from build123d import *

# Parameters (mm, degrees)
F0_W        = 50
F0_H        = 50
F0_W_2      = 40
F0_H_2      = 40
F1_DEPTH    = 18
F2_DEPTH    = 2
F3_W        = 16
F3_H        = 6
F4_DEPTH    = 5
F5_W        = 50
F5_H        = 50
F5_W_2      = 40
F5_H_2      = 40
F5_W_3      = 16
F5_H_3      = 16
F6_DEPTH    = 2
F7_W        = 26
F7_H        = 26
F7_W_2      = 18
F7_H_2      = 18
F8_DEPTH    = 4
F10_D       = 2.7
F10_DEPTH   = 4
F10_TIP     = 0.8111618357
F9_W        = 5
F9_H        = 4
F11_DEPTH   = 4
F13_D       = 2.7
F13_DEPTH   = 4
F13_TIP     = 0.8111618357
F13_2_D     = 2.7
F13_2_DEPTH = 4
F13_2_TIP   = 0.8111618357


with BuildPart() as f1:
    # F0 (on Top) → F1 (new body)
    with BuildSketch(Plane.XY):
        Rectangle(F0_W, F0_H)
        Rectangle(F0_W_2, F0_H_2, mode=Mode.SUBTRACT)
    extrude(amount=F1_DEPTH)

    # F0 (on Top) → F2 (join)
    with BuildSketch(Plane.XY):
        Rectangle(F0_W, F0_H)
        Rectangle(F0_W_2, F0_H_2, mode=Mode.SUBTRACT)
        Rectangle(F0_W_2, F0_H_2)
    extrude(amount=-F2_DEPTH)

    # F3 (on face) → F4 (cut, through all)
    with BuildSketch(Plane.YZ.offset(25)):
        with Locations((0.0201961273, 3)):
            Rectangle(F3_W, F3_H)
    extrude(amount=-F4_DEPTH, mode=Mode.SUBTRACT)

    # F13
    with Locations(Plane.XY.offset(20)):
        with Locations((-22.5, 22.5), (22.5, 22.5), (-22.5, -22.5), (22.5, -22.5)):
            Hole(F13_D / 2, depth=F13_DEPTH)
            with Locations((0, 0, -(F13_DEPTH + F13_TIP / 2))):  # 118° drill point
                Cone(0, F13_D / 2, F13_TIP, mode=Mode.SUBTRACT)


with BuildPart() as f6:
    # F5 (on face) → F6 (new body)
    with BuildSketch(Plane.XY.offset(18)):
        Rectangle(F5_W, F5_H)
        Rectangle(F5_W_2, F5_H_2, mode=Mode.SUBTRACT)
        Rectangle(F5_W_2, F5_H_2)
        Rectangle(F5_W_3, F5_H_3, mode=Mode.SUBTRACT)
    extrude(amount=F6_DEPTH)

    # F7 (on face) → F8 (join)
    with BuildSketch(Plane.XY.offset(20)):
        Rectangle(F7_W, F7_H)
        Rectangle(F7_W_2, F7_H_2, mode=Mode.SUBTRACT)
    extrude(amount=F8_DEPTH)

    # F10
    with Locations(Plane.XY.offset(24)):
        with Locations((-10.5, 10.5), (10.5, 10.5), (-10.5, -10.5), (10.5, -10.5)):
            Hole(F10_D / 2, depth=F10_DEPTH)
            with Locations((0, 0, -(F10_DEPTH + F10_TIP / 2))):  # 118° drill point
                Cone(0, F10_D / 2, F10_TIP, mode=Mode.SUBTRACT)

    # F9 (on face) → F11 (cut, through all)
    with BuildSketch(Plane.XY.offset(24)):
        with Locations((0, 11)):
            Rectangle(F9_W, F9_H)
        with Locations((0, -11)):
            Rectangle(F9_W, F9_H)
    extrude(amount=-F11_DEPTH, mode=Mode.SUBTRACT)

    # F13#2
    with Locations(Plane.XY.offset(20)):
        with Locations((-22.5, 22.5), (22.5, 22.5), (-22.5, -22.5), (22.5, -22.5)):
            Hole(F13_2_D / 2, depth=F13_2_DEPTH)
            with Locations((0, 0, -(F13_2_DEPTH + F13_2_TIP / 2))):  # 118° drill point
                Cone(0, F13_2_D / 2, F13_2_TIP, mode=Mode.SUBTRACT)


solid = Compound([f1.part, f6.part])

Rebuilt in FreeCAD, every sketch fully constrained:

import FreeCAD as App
import Part
import Sketcher
from FreeCAD import Vector
Q = App.Units.Quantity

doc = App.newDocument("Part")
body = doc.addObject("PartDesign::Body", "Body")

# Sketch on XY plane
sketch1 = body.newObject("Sketcher::SketchObject", "Sketch")
sketch1.AttachmentSupport = (doc.getObject("XY_Plane"), [""])
sketch1.MapMode = "FlatFace"
sketch1.addGeometry([
    Part.LineSegment(Vector(-25, 25, 0), Vector(-25, -25, 0)),  # 0
    Part.LineSegment(Vector(-25, -25, 0), Vector(25, -25, 0)),  # 1
    Part.LineSegment(Vector(25, -25, 0), Vector(25, 25, 0)),  # 2
    Part.LineSegment(Vector(25, 25, 0), Vector(-25, 25, 0)),  # 3
    Part.LineSegment(Vector(20, -20, 0), Vector(-20, -20, 0)),  # 4
    Part.LineSegment(Vector(-20, -20, 0), Vector(-20, 20, 0)),  # 5
    Part.LineSegment(Vector(-20, 20, 0), Vector(20, 20, 0)),  # 6
    Part.LineSegment(Vector(20, 20, 0), Vector(20, -20, 0)),  # 7
], False)
sketch1.addConstraint([
    Sketcher.Constraint("Coincident", 0, 2, 1, 1),
    Sketcher.Constraint("Coincident", 1, 2, 2, 1),
    Sketcher.Constraint("Coincident", 2, 2, 3, 1),
    Sketcher.Constraint("Coincident", 3, 2, 0, 1),
    Sketcher.Constraint("Coincident", 4, 2, 5, 1),
    Sketcher.Constraint("Coincident", 5, 2, 6, 1),
    Sketcher.Constraint("Coincident", 6, 2, 7, 1),
    Sketcher.Constraint("Coincident", 7, 2, 4, 1),
    Sketcher.Constraint("Vertical", 0),
    Sketcher.Constraint("Horizontal", 1),
    Sketcher.Constraint("Vertical", 2),
    Sketcher.Constraint("Horizontal", 3),
    Sketcher.Constraint("Horizontal", 4),
    Sketcher.Constraint("Vertical", 5),
    Sketcher.Constraint("Horizontal", 6),
    Sketcher.Constraint("Vertical", 7),
    Sketcher.Constraint("Symmetric", 0, 2, 2, 2, -1, 1),
    Sketcher.Constraint("Symmetric", 4, 2, 6, 2, -1, 1),
    Sketcher.Constraint("Equal", 3, 0),
    Sketcher.Constraint("Equal", 6, 5),
    Sketcher.Constraint("DistanceX", 1, 1, 1, 2, Q("50 mm")),
    Sketcher.Constraint("DistanceX", 4, 2, 4, 1, Q("40 mm")),
])
pad1 = body.newObject("PartDesign::Pad", "Pad")
pad1.Profile = sketch1
pad1.Length = 18

# Sketch on XY plane
sketch2 = body.newObject("Sketcher::SketchObject", "Sketch001")
sketch2.AttachmentSupport = (doc.getObject("XY_Plane"), [""])
sketch2.MapMode = "FlatFace"
sketch2.addGeometry([
    Part.LineSegment(Vector(-25, 25, 0), Vector(-25, -25, 0)),
    Part.LineSegment(Vector(-25, -25, 0), Vector(25, -25, 0)),
    Part.LineSegment(Vector(25, -25, 0), Vector(25, 25, 0)),
    Part.LineSegment(Vector(25, 25, 0), Vector(-25, 25, 0)),
], False)
sketch2.addConstraint([
    Sketcher.Constraint("Coincident", 0, 2, 1, 1),
    Sketcher.Constraint("Coincident", 1, 2, 2, 1),
    Sketcher.Constraint("Coincident", 2, 2, 3, 1),
    Sketcher.Constraint("Coincident", 3, 2, 0, 1),
    Sketcher.Constraint("Vertical", 0),
    Sketcher.Constraint("Horizontal", 1),
    Sketcher.Constraint("Vertical", 2),
    Sketcher.Constraint("Horizontal", 3),
    Sketcher.Constraint("Symmetric", 0, 2, 2, 2, -1, 1),
    Sketcher.Constraint("Equal", 3, 0),
    Sketcher.Constraint("DistanceX", 1, 1, 1, 2, Q("50 mm")),
])
pad2 = body.newObject("PartDesign::Pad", "Pad001")
pad2.Profile = sketch2
pad2.Length = 2
pad2.Reversed = True

# Sketch on YZ plane
sketch3 = body.newObject("Sketcher::SketchObject", "Sketch002")
sketch3.AttachmentSupport = (doc.getObject("YZ_Plane"), [""])
sketch3.MapMode = "FlatFace"
sketch3.AttachmentOffset = App.Placement(Vector(0, 0, 25), App.Rotation())
sketch3.addGeometry([
    Part.LineSegment(Vector(-8, 6, 0), Vector(-8, 0, 0)),
    Part.LineSegment(Vector(-8, 0, 0), Vector(8, 0, 0)),
    Part.LineSegment(Vector(8, 0, 0), Vector(8, 6, 0)),
    Part.LineSegment(Vector(8, 6, 0), Vector(-8, 6, 0)),
], False)
sketch3.addConstraint([
    Sketcher.Constraint("Coincident", 0, 2, 1, 1),
    Sketcher.Constraint("Coincident", 1, 2, 2, 1),
    Sketcher.Constraint("Coincident", 2, 2, 3, 1),
    Sketcher.Constraint("Coincident", 3, 2, 0, 1),
    Sketcher.Constraint("Vertical", 0),
    Sketcher.Constraint("Horizontal", 1),
    Sketcher.Constraint("Vertical", 2),
    Sketcher.Constraint("Horizontal", 3),
    Sketcher.Constraint("PointOnObject", 0, 2, -1),
    Sketcher.Constraint("DistanceX", 1, 1, 1, 2, Q("16 mm")),
    Sketcher.Constraint("DistanceY", 0, 2, 0, 1, Q("6 mm")),
    Sketcher.Constraint("DistanceX", 0, 2, -1, 1, Q("7.979804 mm")),
])
pocket1 = body.newObject("PartDesign::Pocket", "Pocket")
pocket1.Profile = sketch3
pocket1.Length = 5

# Sketch on XY plane
sketch4 = body.newObject("Sketcher::SketchObject", "Sketch003")
sketch4.AttachmentSupport = (doc.getObject("XY_Plane"), [""])
sketch4.MapMode = "FlatFace"
sketch4.AttachmentOffset = App.Placement(Vector(0, 0, 20), App.Rotation())
sketch4.addGeometry([
    Part.Circle(Vector(-22.5, 22.5, 0), Vector(0, 0, 1), 1.4),
    Part.Circle(Vector(22.5, 22.5, 0), Vector(0, 0, 1), 1.4),
    Part.Circle(Vector(-22.5, -22.5, 0), Vector(0, 0, 1), 1.4),
    Part.Circle(Vector(22.5, -22.5, 0), Vector(0, 0, 1), 1.4),
], False)
sketch4.addConstraint([
    Sketcher.Constraint("Equal", 0, 1),
    Sketcher.Constraint("Equal", 1, 2),
    Sketcher.Constraint("Equal", 2, 3),
    Sketcher.Constraint("Symmetric", 1, 3, 2, 3, -1, 1),
    Sketcher.Constraint("Symmetric", 0, 3, 3, 3, -1, 1),
    Sketcher.Constraint("Symmetric", 0, 3, 1, 3, -2),
    Sketcher.Constraint("Diameter", 0, Q("2.7 mm")),
    Sketcher.Constraint("DistanceX", 0, 3, 1, 3, Q("45 mm")),
    Sketcher.Constraint("DistanceY", 2, 3, 0, 3, Q("45 mm")),
])
doc.recompute()
hole = body.newObject("PartDesign::Hole", "Hole")
hole.Profile = sketch4
hole.ThreadType = "None"
hole.Diameter = 2.7
hole.DepthType = "Dimension"
hole.Depth = 4
hole.DrillPoint = "Angled"
hole.DrillPointAngle = 118
body2 = doc.addObject("PartDesign::Body", "Body001")

# Sketch on XY plane
sketch5 = body2.newObject("Sketcher::SketchObject", "Sketch004")
sketch5.AttachmentSupport = (doc.getObject("XY_Plane001"), [""])
sketch5.MapMode = "FlatFace"
sketch5.AttachmentOffset = App.Placement(Vector(0, 0, 18), App.Rotation())
sketch5.addGeometry([
    Part.LineSegment(Vector(-25, 25, 0), Vector(-25, -25, 0)),  # 0
    Part.LineSegment(Vector(-25, -25, 0), Vector(25, -25, 0)),  # 1
    Part.LineSegment(Vector(25, -25, 0), Vector(25, 25, 0)),  # 2
    Part.LineSegment(Vector(25, 25, 0), Vector(-25, 25, 0)),  # 3
    Part.LineSegment(Vector(8, -8, 0), Vector(-8, -8, 0)),  # 4
    Part.LineSegment(Vector(-8, -8, 0), Vector(-8, 8, 0)),  # 5
    Part.LineSegment(Vector(-8, 8, 0), Vector(8, 8, 0)),  # 6
    Part.LineSegment(Vector(8, 8, 0), Vector(8, -8, 0)),  # 7
], False)
sketch5.addConstraint([
    Sketcher.Constraint("Coincident", 0, 2, 1, 1),
    Sketcher.Constraint("Coincident", 1, 2, 2, 1),
    Sketcher.Constraint("Coincident", 2, 2, 3, 1),
    Sketcher.Constraint("Coincident", 3, 2, 0, 1),
    Sketcher.Constraint("Coincident", 4, 2, 5, 1),
    Sketcher.Constraint("Coincident", 5, 2, 6, 1),
    Sketcher.Constraint("Coincident", 6, 2, 7, 1),
    Sketcher.Constraint("Coincident", 7, 2, 4, 1),
    Sketcher.Constraint("Vertical", 0),
    Sketcher.Constraint("Horizontal", 1),
    Sketcher.Constraint("Vertical", 2),
    Sketcher.Constraint("Horizontal", 3),
    Sketcher.Constraint("Horizontal", 4),
    Sketcher.Constraint("Vertical", 5),
    Sketcher.Constraint("Horizontal", 6),
    Sketcher.Constraint("Vertical", 7),
    Sketcher.Constraint("Symmetric", 0, 2, 2, 2, -1, 1),
    Sketcher.Constraint("Symmetric", 4, 2, 6, 2, -1, 1),
    Sketcher.Constraint("Equal", 3, 0),
    Sketcher.Constraint("Equal", 6, 5),
    Sketcher.Constraint("DistanceX", 1, 1, 1, 2, Q("50 mm")),
    Sketcher.Constraint("DistanceX", 4, 2, 4, 1, Q("16 mm")),
])
pad3 = body2.newObject("PartDesign::Pad", "Pad002")
pad3.Profile = sketch5
pad3.Length = 2

# Sketch on XY plane
sketch6 = body2.newObject("Sketcher::SketchObject", "Sketch005")
sketch6.AttachmentSupport = (doc.getObject("XY_Plane001"), [""])
sketch6.MapMode = "FlatFace"
sketch6.AttachmentOffset = App.Placement(Vector(0, 0, 20), App.Rotation())
sketch6.addGeometry([
    Part.LineSegment(Vector(-13, 13, 0), Vector(-13, -13, 0)),  # 0
    Part.LineSegment(Vector(-13, -13, 0), Vector(13, -13, 0)),  # 1
    Part.LineSegment(Vector(13, -13, 0), Vector(13, 13, 0)),  # 2
    Part.LineSegment(Vector(13, 13, 0), Vector(-13, 13, 0)),  # 3
    Part.LineSegment(Vector(9, -9, 0), Vector(-9, -9, 0)),  # 4
    Part.LineSegment(Vector(-9, -9, 0), Vector(-9, 9, 0)),  # 5
    Part.LineSegment(Vector(-9, 9, 0), Vector(9, 9, 0)),  # 6
    Part.LineSegment(Vector(9, 9, 0), Vector(9, -9, 0)),  # 7
], False)
sketch6.addConstraint([
    Sketcher.Constraint("Coincident", 0, 2, 1, 1),
    Sketcher.Constraint("Coincident", 1, 2, 2, 1),
    Sketcher.Constraint("Coincident", 2, 2, 3, 1),
    Sketcher.Constraint("Coincident", 3, 2, 0, 1),
    Sketcher.Constraint("Coincident", 4, 2, 5, 1),
    Sketcher.Constraint("Coincident", 5, 2, 6, 1),
    Sketcher.Constraint("Coincident", 6, 2, 7, 1),
    Sketcher.Constraint("Coincident", 7, 2, 4, 1),
    Sketcher.Constraint("Vertical", 0),
    Sketcher.Constraint("Horizontal", 1),
    Sketcher.Constraint("Vertical", 2),
    Sketcher.Constraint("Horizontal", 3),
    Sketcher.Constraint("Horizontal", 4),
    Sketcher.Constraint("Vertical", 5),
    Sketcher.Constraint("Horizontal", 6),
    Sketcher.Constraint("Vertical", 7),
    Sketcher.Constraint("Symmetric", 0, 2, 2, 2, -1, 1),
    Sketcher.Constraint("Symmetric", 4, 2, 6, 2, -1, 1),
    Sketcher.Constraint("Equal", 3, 0),
    Sketcher.Constraint("Equal", 6, 5),
    Sketcher.Constraint("DistanceX", 1, 1, 1, 2, Q("26 mm")),
    Sketcher.Constraint("DistanceX", 4, 2, 4, 1, Q("18 mm")),
])
pad4 = body2.newObject("PartDesign::Pad", "Pad003")
pad4.Profile = sketch6
pad4.Length = 4

# Sketch on XY plane
sketch7 = body2.newObject("Sketcher::SketchObject", "Sketch006")
sketch7.AttachmentSupport = (doc.getObject("XY_Plane001"), [""])
sketch7.MapMode = "FlatFace"
sketch7.AttachmentOffset = App.Placement(Vector(0, 0, 24), App.Rotation())
sketch7.addGeometry([
    Part.Circle(Vector(-10.5, 10.5, 0), Vector(0, 0, 1), 1.4),
    Part.Circle(Vector(10.5, 10.5, 0), Vector(0, 0, 1), 1.4),
    Part.Circle(Vector(-10.5, -10.5, 0), Vector(0, 0, 1), 1.4),
    Part.Circle(Vector(10.5, -10.5, 0), Vector(0, 0, 1), 1.4),
], False)
sketch7.addConstraint([
    Sketcher.Constraint("Equal", 0, 1),
    Sketcher.Constraint("Equal", 1, 2),
    Sketcher.Constraint("Equal", 2, 3),
    Sketcher.Constraint("Symmetric", 1, 3, 2, 3, -1, 1),
    Sketcher.Constraint("Symmetric", 0, 3, 3, 3, -1, 1),
    Sketcher.Constraint("Symmetric", 0, 3, 1, 3, -2),
    Sketcher.Constraint("Diameter", 0, Q("2.7 mm")),
    Sketcher.Constraint("DistanceX", 0, 3, 1, 3, Q("21 mm")),
    Sketcher.Constraint("DistanceY", 2, 3, 0, 3, Q("21 mm")),
])
doc.recompute()
hole2 = body2.newObject("PartDesign::Hole", "Hole001")
hole2.Profile = sketch7
hole2.ThreadType = "None"
hole2.Diameter = 2.7
hole2.DepthType = "Dimension"
hole2.Depth = 4
hole2.DrillPoint = "Angled"
hole2.DrillPointAngle = 118

# Sketch on XY plane
sketch8 = body2.newObject("Sketcher::SketchObject", "Sketch007")
sketch8.AttachmentSupport = (doc.getObject("XY_Plane001"), [""])
sketch8.MapMode = "FlatFace"
sketch8.AttachmentOffset = App.Placement(Vector(0, 0, 24), App.Rotation())
sketch8.addGeometry([
    Part.LineSegment(Vector(-2.5, 13, 0), Vector(-2.5, 9, 0)),  # 0
    Part.LineSegment(Vector(-2.5, 9, 0), Vector(2.5, 9, 0)),  # 1
    Part.LineSegment(Vector(2.5, 9, 0), Vector(2.5, 13, 0)),  # 2
    Part.LineSegment(Vector(2.5, 13, 0), Vector(-2.5, 13, 0)),  # 3
    Part.LineSegment(Vector(-2.5, -9, 0), Vector(-2.5, -13, 0)),  # 4
    Part.LineSegment(Vector(-2.5, -13, 0), Vector(2.5, -13, 0)),  # 5
    Part.LineSegment(Vector(2.5, -13, 0), Vector(2.5, -9, 0)),  # 6
    Part.LineSegment(Vector(2.5, -9, 0), Vector(-2.5, -9, 0)),  # 7
], False)
sketch8.addConstraint([
    Sketcher.Constraint("Coincident", 0, 2, 1, 1),
    Sketcher.Constraint("Coincident", 1, 2, 2, 1),
    Sketcher.Constraint("Coincident", 2, 2, 3, 1),
    Sketcher.Constraint("Coincident", 3, 2, 0, 1),
    Sketcher.Constraint("Coincident", 4, 2, 5, 1),
    Sketcher.Constraint("Coincident", 5, 2, 6, 1),
    Sketcher.Constraint("Coincident", 6, 2, 7, 1),
    Sketcher.Constraint("Coincident", 7, 2, 4, 1),
    Sketcher.Constraint("Vertical", 0),
    Sketcher.Constraint("Horizontal", 1),
    Sketcher.Constraint("Vertical", 2),
    Sketcher.Constraint("Horizontal", 3),
    Sketcher.Constraint("Vertical", 4),
    Sketcher.Constraint("Horizontal", 5),
    Sketcher.Constraint("Vertical", 6),
    Sketcher.Constraint("Horizontal", 7),
    Sketcher.Constraint("Symmetric", 2, 2, 4, 2, -1, 1),
    Sketcher.Constraint("Symmetric", 0, 2, 6, 2, -1, 1),
    Sketcher.Constraint("Vertical", 3, 2, 4, 2),
    Sketcher.Constraint("DistanceX", 1, 1, 1, 2, Q("5 mm")),
    Sketcher.Constraint("DistanceY", 0, 2, 0, 1, Q("4 mm")),
    Sketcher.Constraint("DistanceY", -1, 1, 0, 2, Q("9 mm")),
])
pocket2 = body2.newObject("PartDesign::Pocket", "Pocket001")
pocket2.Profile = sketch8
pocket2.Length = 4

# Sketch on XY plane
sketch9 = body2.newObject("Sketcher::SketchObject", "Sketch008")
sketch9.AttachmentSupport = (doc.getObject("XY_Plane001"), [""])
sketch9.MapMode = "FlatFace"
sketch9.AttachmentOffset = App.Placement(Vector(0, 0, 20), App.Rotation())
sketch9.addGeometry([
    Part.Circle(Vector(-22.5, 22.5, 0), Vector(0, 0, 1), 1.4),
    Part.Circle(Vector(22.5, 22.5, 0), Vector(0, 0, 1), 1.4),
    Part.Circle(Vector(-22.5, -22.5, 0), Vector(0, 0, 1), 1.4),
    Part.Circle(Vector(22.5, -22.5, 0), Vector(0, 0, 1), 1.4),
], False)
sketch9.addConstraint([
    Sketcher.Constraint("Equal", 0, 1),
    Sketcher.Constraint("Equal", 1, 2),
    Sketcher.Constraint("Equal", 2, 3),
    Sketcher.Constraint("Symmetric", 1, 3, 2, 3, -1, 1),
    Sketcher.Constraint("Symmetric", 0, 3, 3, 3, -1, 1),
    Sketcher.Constraint("Symmetric", 0, 3, 1, 3, -2),
    Sketcher.Constraint("Diameter", 0, Q("2.7 mm")),
    Sketcher.Constraint("DistanceX", 0, 3, 1, 3, Q("45 mm")),
    Sketcher.Constraint("DistanceY", 2, 3, 0, 3, Q("45 mm")),
])
doc.recompute()
hole3 = body2.newObject("PartDesign::Hole", "Hole002")
hole3.Profile = sketch9
hole3.ThreadType = "None"
hole3.Diameter = 2.7
hole3.DepthType = "Dimension"
hole3.Depth = 4
hole3.DrillPoint = "Angled"
hole3.DrillPointAngle = 118

doc.recompute()
